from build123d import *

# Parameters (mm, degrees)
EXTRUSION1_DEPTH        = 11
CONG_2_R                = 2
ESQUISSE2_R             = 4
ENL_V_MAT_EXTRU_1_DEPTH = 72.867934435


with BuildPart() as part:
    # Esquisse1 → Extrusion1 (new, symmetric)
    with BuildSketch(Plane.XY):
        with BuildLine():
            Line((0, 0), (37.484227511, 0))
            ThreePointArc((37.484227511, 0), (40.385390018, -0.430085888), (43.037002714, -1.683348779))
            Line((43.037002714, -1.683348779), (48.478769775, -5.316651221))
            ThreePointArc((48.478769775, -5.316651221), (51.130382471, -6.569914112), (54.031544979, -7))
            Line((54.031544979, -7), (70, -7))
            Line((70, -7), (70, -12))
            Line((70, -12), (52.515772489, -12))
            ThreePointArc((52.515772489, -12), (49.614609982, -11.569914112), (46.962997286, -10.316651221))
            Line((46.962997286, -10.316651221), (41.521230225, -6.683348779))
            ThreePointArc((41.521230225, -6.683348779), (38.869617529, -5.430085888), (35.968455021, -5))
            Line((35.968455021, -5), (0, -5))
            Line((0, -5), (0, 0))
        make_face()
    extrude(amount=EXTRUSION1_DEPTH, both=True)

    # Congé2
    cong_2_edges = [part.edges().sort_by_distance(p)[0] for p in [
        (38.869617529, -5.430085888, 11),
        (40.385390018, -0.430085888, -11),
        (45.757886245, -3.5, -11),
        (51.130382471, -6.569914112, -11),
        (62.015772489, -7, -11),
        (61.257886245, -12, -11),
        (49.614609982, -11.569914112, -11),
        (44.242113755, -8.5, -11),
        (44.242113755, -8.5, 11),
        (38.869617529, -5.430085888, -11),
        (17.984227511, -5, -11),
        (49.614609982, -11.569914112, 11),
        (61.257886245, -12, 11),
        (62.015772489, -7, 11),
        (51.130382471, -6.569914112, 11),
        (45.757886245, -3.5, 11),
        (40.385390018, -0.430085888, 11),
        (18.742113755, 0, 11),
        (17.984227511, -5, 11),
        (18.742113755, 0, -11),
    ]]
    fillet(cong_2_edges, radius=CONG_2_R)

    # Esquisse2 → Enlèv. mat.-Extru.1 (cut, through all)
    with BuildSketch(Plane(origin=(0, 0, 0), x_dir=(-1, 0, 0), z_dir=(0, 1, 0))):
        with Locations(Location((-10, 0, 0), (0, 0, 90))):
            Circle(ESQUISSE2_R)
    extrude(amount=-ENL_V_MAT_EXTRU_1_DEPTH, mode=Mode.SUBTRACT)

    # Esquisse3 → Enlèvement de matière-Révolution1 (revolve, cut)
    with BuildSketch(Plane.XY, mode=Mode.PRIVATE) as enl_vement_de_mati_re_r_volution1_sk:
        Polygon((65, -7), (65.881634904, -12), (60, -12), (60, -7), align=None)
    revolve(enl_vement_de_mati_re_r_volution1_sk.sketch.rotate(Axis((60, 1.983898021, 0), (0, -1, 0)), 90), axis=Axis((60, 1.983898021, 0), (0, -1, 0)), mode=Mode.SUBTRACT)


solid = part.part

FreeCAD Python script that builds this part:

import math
import FreeCAD as App
import Part
import Sketcher
from FreeCAD import Vector
Q = App.Units.Quantity


def edges_at(feature, points):
    """Names of the edges that pass closest to the given points."""
    edges = feature.Shape.Edges
    near = lambda p: min(range(len(edges)), key=lambda i: edges[i].distToShape(Part.Vertex(*p))[0])
    return sorted({f"Edge{near(p) + 1}" for p in points})

doc = App.newDocument("Part")
params = doc.addObject("Spreadsheet::Sheet", "Params")
for row, (alias, value) in enumerate([
    ("sketch1_radius", "10 mm"),
    ("sketch1_height", "5 mm"),
    ("pad1_length", "22 mm"),
    ("fillet_radius", "2 mm"),
    ("sketch2_diameter", "8 mm"),
    ("sketch3_width", "5 mm"),
    ("groove_angle", "360 deg"),
], start=1):
    params.set(f"A{row}", alias)
    params.set(f"B{row}", "=" + value)
    params.setAlias(f"B{row}", alias)

body = doc.addObject("PartDesign::Body", "Body")

# Sketch on XY plane
sketch1 = body.newObject("Sketcher::SketchObject", "Sketch")
sketch1.AttachmentSupport = (doc.getObject("XY_Plane"), [""])
sketch1.MapMode = "FlatFace"
sketch1.addGeometry(Part.LineSegment(Vector(37, 0, 0), Vector(0, 0, 0)), False)
sketch1.addGeometry(Part.LineSegment(Vector(0, 0, 0), Vector(0, -5, 0)), False)
sketch1.addGeometry(Part.LineSegment(Vector(0, -5, 0), Vector(36, -5, 0)), False)
sketch1.addGeometry(Part.ArcOfCircle(Part.Circle(Vector(36, -15, 0), Vector(0, 0, 1), 10), math.radians(56), math.radians(90)), False)
sketch1.addGeometry(Part.LineSegment(Vector(42, -7, 0), Vector(47, -10, 0)), False)
sketch1.addGeometry(Part.ArcOfCircle(Part.Circle(Vector(53, -2, 0), Vector(0, 0, 1), 10), math.radians(-124), math.radians(-90)), False)
sketch1.addGeometry(Part.LineSegment(Vector(53, -12, 0), Vector(70, -12, 0)), False)
sketch1.addGeometry(Part.LineSegment(Vector(70, -12, 0), Vector(70, -7, 0)), False)
sketch1.addGeometry(Part.LineSegment(Vector(70, -7, 0), Vector(54, -7, 0)), False)
sketch1.addGeometry(Part.ArcOfCircle(Part.Circle(Vector(54, 3, 0), Vector(0, 0, 1), 10), math.radians(-124), math.radians(-90)), False)
sketch1.addGeometry(Part.LineSegment(Vector(48, -5, 0), Vector(43, -2, 0)), False)
sketch1.addGeometry(Part.ArcOfCircle(Part.Circle(Vector(37, -10, 0), Vector(0, 0, 1), 10), math.radians(56), math.radians(90)), False)
sketch1.addConstraint(Sketcher.Constraint("Coincident", 0, 2, 1, 1))
sketch1.addConstraint(Sketcher.Constraint("Coincident", 1, 2, 2, 1))
sketch1.addConstraint(Sketcher.Constraint("Tangent", 2, 2, 3, 2))
sketch1.addConstraint(Sketcher.Constraint("Tangent", 3, 1, 4, 1))
sketch1.addConstraint(Sketcher.Constraint("Tangent", 4, 2, 5, 1))
sketch1.addConstraint(Sketcher.Constraint("Tangent", 5, 2, 6, 1))
sketch1.addConstraint(Sketcher.Constraint("Coincident", 6, 2, 7, 1))
sketch1.addConstraint(Sketcher.Constraint("Coincident", 7, 2, 8, 1))
sketch1.addConstraint(Sketcher.Constraint("Tangent", 8, 2, 9, 2))
sketch1.addConstraint(Sketcher.Constraint("Tangent", 9, 1, 10, 1))
sketch1.addConstraint(Sketcher.Constraint("Tangent", 10, 2, 11, 1))
sketch1.addConstraint(Sketcher.Constraint("Tangent", 11, 2, 0, 1))
sketch1.addConstraint(Sketcher.Constraint("Horizontal", 0))
sketch1.addConstraint(Sketcher.Constraint("Vertical", 1))
sketch1.addConstraint(Sketcher.Constraint("Horizontal", 2))
sketch1.addConstraint(Sketcher.Constraint("Horizontal", 6))
sketch1.addConstraint(Sketcher.Constraint("Vertical", 7))
sketch1.addConstraint(Sketcher.Constraint("Horizontal", 8))
sketch1.addConstraint(Sketcher.Constraint("Coincident", 0, 2, -1, 1))
sketch1.addConstraint(Sketcher.Constraint("Equal", 3, 5))
sketch1.addConstraint(Sketcher.Constraint("Equal", 5, 9))
sketch1.addConstraint(Sketcher.Constraint("Equal", 9, 11))
sketch1.addConstraint(Sketcher.Constraint("Parallel", 4, 10))
sketch1.addConstraint(Sketcher.Constraint("Equal", 1, 7))
sketch1.addConstraint(Sketcher.Constraint("Radius", 3, 10.0))
sketch1.addConstraint(Sketcher.Constraint("DistanceY", 1, 2, 1, 1, 5.0))
sketch1.addConstraint(Sketcher.Constraint("DistanceY", 5, 3, -1, 1, 2.0))
sketch1.addConstraint(Sketcher.Constraint("DistanceX", -1, 1, 6, 2, 70.0))
sketch1.addConstraint(Sketcher.Constraint("Distance", 4, 6.543219))
sketch1.addConstraint(Sketcher.Constraint("DistanceX", 0, 2, 0, 1, 37.484228))
sketch1.addConstraint(Sketcher.Constraint("DistanceX", 2, 1, 2, 2, 35.968455))
sketch1.setExpression("Constraints[24]", "Params.sketch1_radius")
sketch1.setExpression("Constraints[25]", "Params.sketch1_height")
pad1 = body.newObject("PartDesign::Pad", "Pad")
pad1.Profile = sketch1
pad1.setExpression("Length", "Params.pad1_length")
pad1.Midplane = True
doc.recompute()

fillet = body.newObject("PartDesign::Fillet", "Fillet")
fillet.Base = (pad1, edges_at(pad1, [
    (38.87, -5.43, 11),
    (40.385, -0.43, -11),
    (45.758, -3.5, -11),
    (51.13, -6.57, -11),
    (62.016, -7, -11),
    (61.258, -12, -11),
    (49.615, -11.57, -11),
    (44.242, -8.5, -11),
    (44.242, -8.5, 11),
    (38.87, -5.43, -11),
    (17.984, -5, -11),
    (49.615, -11.57, 11),
    (61.258, -12, 11),
    (62.016, -7, 11),
    (51.13, -6.57, 11),
    (45.758, -3.5, 11),
    (40.385, -0.43, 11),
    (18.742, 0, 11),
    (17.984, -5, 11),
    (18.742, 0, -11),
]))
fillet.setExpression("Radius", "Params.fillet_radius")

# Sketch on XZ plane
sketch2 = body.newObject("Sketcher::SketchObject", "Sketch001")
sketch2.AttachmentSupport = (doc.getObject("XZ_Plane"), [""])
sketch2.MapMode = "FlatFace"
sketch2.addGeometry(Part.Circle(Vector(10, 0, 0), Vector(0, 0, 1), 4), False)
sketch2.addConstraint(Sketcher.Constraint("PointOnObject", 0, 3, -1))
sketch2.addConstraint(Sketcher.Constraint("Diameter", 0, 8.0))
sketch2.addConstraint(Sketcher.Constraint("DistanceX", -1, 1, 0, 3, 10.0))
sketch2.setExpression("Constraints[1]", "Params.sketch2_diameter")
pocket1 = body.newObject("PartDesign::Pocket", "Pocket")
pocket1.Profile = sketch2
pocket1.Type = "ThroughAll"
pocket1.Reversed = True

# Sketch on XY plane
sketch3 = body.newObject("Sketcher::SketchObject", "Sketch002")
sketch3.AttachmentSupport = (doc.getObject("XY_Plane"), [""])
sketch3.MapMode = "FlatFace"
sketch3.addGeometry(Part.LineSegment(Vector(66, -12, 0), Vector(65, -7, 0)), False)
sketch3.addGeometry(Part.LineSegment(Vector(65, -7, 0), Vector(60, -7, 0)), False)
sketch3.addGeometry(Part.LineSegment(Vector(60, -7, 0), Vector(60, -12, 0)), False)
sketch3.addGeometry(Part.LineSegment(Vector(60, -12, 0), Vector(66, -12, 0)), False)
sketch3.addGeometry(Part.LineSegment(Vector(60, -7, 0), Vector(60, -12, 0)), True)  # axis
sketch3.addConstraint(Sketcher.Constraint("Coincident", 0, 2, 1, 1))
sketch3.addConstraint(Sketcher.Constraint("Coincident", 1, 2, 2, 1))
sketch3.addConstraint(Sketcher.Constraint("Coincident", 2, 2, 3, 1))
sketch3.addConstraint(Sketcher.Constraint("Coincident", 3, 2, 0, 1))
sketch3.addConstraint(Sketcher.Constraint("Horizontal", 1))
sketch3.addConstraint(Sketcher.Constraint("Vertical", 2))
sketch3.addConstraint(Sketcher.Constraint("Horizontal", 3))
sketch3.addConstraint(Sketcher.Constraint("Vertical", 4))
sketch3.addConstraint(Sketcher.Constraint("Coincident", 4, 1, 1, 2))
sketch3.addConstraint(Sketcher.Constraint("Horizontal", 3, 2, 4, 2))
sketch3.addConstraint(Sketcher.Constraint("Equal", 1, 2))
sketch3.addConstraint(Sketcher.Constraint("DistanceX", 1, 2, 1, 1, 5.0))
sketch3.addConstraint(Sketcher.Constraint("Angle", 0, Q("100 deg")))
sketch3.addConstraint(Sketcher.Constraint("DistanceX", -1, 1, 0, 2, 65.0))
sketch3.addConstraint(Sketcher.Constraint("DistanceY", 0, 2, -1, 1, 7.0))
sketch3.setExpression("Constraints[11]", "Params.sketch3_width")
groove = body.newObject("PartDesign::Groove", "Groove")
groove.Profile = sketch3
groove.ReferenceAxis = (sketch3, ["Axis0"])
groove.setExpression("Angle", "Params.groove_angle")

doc.recompute()
